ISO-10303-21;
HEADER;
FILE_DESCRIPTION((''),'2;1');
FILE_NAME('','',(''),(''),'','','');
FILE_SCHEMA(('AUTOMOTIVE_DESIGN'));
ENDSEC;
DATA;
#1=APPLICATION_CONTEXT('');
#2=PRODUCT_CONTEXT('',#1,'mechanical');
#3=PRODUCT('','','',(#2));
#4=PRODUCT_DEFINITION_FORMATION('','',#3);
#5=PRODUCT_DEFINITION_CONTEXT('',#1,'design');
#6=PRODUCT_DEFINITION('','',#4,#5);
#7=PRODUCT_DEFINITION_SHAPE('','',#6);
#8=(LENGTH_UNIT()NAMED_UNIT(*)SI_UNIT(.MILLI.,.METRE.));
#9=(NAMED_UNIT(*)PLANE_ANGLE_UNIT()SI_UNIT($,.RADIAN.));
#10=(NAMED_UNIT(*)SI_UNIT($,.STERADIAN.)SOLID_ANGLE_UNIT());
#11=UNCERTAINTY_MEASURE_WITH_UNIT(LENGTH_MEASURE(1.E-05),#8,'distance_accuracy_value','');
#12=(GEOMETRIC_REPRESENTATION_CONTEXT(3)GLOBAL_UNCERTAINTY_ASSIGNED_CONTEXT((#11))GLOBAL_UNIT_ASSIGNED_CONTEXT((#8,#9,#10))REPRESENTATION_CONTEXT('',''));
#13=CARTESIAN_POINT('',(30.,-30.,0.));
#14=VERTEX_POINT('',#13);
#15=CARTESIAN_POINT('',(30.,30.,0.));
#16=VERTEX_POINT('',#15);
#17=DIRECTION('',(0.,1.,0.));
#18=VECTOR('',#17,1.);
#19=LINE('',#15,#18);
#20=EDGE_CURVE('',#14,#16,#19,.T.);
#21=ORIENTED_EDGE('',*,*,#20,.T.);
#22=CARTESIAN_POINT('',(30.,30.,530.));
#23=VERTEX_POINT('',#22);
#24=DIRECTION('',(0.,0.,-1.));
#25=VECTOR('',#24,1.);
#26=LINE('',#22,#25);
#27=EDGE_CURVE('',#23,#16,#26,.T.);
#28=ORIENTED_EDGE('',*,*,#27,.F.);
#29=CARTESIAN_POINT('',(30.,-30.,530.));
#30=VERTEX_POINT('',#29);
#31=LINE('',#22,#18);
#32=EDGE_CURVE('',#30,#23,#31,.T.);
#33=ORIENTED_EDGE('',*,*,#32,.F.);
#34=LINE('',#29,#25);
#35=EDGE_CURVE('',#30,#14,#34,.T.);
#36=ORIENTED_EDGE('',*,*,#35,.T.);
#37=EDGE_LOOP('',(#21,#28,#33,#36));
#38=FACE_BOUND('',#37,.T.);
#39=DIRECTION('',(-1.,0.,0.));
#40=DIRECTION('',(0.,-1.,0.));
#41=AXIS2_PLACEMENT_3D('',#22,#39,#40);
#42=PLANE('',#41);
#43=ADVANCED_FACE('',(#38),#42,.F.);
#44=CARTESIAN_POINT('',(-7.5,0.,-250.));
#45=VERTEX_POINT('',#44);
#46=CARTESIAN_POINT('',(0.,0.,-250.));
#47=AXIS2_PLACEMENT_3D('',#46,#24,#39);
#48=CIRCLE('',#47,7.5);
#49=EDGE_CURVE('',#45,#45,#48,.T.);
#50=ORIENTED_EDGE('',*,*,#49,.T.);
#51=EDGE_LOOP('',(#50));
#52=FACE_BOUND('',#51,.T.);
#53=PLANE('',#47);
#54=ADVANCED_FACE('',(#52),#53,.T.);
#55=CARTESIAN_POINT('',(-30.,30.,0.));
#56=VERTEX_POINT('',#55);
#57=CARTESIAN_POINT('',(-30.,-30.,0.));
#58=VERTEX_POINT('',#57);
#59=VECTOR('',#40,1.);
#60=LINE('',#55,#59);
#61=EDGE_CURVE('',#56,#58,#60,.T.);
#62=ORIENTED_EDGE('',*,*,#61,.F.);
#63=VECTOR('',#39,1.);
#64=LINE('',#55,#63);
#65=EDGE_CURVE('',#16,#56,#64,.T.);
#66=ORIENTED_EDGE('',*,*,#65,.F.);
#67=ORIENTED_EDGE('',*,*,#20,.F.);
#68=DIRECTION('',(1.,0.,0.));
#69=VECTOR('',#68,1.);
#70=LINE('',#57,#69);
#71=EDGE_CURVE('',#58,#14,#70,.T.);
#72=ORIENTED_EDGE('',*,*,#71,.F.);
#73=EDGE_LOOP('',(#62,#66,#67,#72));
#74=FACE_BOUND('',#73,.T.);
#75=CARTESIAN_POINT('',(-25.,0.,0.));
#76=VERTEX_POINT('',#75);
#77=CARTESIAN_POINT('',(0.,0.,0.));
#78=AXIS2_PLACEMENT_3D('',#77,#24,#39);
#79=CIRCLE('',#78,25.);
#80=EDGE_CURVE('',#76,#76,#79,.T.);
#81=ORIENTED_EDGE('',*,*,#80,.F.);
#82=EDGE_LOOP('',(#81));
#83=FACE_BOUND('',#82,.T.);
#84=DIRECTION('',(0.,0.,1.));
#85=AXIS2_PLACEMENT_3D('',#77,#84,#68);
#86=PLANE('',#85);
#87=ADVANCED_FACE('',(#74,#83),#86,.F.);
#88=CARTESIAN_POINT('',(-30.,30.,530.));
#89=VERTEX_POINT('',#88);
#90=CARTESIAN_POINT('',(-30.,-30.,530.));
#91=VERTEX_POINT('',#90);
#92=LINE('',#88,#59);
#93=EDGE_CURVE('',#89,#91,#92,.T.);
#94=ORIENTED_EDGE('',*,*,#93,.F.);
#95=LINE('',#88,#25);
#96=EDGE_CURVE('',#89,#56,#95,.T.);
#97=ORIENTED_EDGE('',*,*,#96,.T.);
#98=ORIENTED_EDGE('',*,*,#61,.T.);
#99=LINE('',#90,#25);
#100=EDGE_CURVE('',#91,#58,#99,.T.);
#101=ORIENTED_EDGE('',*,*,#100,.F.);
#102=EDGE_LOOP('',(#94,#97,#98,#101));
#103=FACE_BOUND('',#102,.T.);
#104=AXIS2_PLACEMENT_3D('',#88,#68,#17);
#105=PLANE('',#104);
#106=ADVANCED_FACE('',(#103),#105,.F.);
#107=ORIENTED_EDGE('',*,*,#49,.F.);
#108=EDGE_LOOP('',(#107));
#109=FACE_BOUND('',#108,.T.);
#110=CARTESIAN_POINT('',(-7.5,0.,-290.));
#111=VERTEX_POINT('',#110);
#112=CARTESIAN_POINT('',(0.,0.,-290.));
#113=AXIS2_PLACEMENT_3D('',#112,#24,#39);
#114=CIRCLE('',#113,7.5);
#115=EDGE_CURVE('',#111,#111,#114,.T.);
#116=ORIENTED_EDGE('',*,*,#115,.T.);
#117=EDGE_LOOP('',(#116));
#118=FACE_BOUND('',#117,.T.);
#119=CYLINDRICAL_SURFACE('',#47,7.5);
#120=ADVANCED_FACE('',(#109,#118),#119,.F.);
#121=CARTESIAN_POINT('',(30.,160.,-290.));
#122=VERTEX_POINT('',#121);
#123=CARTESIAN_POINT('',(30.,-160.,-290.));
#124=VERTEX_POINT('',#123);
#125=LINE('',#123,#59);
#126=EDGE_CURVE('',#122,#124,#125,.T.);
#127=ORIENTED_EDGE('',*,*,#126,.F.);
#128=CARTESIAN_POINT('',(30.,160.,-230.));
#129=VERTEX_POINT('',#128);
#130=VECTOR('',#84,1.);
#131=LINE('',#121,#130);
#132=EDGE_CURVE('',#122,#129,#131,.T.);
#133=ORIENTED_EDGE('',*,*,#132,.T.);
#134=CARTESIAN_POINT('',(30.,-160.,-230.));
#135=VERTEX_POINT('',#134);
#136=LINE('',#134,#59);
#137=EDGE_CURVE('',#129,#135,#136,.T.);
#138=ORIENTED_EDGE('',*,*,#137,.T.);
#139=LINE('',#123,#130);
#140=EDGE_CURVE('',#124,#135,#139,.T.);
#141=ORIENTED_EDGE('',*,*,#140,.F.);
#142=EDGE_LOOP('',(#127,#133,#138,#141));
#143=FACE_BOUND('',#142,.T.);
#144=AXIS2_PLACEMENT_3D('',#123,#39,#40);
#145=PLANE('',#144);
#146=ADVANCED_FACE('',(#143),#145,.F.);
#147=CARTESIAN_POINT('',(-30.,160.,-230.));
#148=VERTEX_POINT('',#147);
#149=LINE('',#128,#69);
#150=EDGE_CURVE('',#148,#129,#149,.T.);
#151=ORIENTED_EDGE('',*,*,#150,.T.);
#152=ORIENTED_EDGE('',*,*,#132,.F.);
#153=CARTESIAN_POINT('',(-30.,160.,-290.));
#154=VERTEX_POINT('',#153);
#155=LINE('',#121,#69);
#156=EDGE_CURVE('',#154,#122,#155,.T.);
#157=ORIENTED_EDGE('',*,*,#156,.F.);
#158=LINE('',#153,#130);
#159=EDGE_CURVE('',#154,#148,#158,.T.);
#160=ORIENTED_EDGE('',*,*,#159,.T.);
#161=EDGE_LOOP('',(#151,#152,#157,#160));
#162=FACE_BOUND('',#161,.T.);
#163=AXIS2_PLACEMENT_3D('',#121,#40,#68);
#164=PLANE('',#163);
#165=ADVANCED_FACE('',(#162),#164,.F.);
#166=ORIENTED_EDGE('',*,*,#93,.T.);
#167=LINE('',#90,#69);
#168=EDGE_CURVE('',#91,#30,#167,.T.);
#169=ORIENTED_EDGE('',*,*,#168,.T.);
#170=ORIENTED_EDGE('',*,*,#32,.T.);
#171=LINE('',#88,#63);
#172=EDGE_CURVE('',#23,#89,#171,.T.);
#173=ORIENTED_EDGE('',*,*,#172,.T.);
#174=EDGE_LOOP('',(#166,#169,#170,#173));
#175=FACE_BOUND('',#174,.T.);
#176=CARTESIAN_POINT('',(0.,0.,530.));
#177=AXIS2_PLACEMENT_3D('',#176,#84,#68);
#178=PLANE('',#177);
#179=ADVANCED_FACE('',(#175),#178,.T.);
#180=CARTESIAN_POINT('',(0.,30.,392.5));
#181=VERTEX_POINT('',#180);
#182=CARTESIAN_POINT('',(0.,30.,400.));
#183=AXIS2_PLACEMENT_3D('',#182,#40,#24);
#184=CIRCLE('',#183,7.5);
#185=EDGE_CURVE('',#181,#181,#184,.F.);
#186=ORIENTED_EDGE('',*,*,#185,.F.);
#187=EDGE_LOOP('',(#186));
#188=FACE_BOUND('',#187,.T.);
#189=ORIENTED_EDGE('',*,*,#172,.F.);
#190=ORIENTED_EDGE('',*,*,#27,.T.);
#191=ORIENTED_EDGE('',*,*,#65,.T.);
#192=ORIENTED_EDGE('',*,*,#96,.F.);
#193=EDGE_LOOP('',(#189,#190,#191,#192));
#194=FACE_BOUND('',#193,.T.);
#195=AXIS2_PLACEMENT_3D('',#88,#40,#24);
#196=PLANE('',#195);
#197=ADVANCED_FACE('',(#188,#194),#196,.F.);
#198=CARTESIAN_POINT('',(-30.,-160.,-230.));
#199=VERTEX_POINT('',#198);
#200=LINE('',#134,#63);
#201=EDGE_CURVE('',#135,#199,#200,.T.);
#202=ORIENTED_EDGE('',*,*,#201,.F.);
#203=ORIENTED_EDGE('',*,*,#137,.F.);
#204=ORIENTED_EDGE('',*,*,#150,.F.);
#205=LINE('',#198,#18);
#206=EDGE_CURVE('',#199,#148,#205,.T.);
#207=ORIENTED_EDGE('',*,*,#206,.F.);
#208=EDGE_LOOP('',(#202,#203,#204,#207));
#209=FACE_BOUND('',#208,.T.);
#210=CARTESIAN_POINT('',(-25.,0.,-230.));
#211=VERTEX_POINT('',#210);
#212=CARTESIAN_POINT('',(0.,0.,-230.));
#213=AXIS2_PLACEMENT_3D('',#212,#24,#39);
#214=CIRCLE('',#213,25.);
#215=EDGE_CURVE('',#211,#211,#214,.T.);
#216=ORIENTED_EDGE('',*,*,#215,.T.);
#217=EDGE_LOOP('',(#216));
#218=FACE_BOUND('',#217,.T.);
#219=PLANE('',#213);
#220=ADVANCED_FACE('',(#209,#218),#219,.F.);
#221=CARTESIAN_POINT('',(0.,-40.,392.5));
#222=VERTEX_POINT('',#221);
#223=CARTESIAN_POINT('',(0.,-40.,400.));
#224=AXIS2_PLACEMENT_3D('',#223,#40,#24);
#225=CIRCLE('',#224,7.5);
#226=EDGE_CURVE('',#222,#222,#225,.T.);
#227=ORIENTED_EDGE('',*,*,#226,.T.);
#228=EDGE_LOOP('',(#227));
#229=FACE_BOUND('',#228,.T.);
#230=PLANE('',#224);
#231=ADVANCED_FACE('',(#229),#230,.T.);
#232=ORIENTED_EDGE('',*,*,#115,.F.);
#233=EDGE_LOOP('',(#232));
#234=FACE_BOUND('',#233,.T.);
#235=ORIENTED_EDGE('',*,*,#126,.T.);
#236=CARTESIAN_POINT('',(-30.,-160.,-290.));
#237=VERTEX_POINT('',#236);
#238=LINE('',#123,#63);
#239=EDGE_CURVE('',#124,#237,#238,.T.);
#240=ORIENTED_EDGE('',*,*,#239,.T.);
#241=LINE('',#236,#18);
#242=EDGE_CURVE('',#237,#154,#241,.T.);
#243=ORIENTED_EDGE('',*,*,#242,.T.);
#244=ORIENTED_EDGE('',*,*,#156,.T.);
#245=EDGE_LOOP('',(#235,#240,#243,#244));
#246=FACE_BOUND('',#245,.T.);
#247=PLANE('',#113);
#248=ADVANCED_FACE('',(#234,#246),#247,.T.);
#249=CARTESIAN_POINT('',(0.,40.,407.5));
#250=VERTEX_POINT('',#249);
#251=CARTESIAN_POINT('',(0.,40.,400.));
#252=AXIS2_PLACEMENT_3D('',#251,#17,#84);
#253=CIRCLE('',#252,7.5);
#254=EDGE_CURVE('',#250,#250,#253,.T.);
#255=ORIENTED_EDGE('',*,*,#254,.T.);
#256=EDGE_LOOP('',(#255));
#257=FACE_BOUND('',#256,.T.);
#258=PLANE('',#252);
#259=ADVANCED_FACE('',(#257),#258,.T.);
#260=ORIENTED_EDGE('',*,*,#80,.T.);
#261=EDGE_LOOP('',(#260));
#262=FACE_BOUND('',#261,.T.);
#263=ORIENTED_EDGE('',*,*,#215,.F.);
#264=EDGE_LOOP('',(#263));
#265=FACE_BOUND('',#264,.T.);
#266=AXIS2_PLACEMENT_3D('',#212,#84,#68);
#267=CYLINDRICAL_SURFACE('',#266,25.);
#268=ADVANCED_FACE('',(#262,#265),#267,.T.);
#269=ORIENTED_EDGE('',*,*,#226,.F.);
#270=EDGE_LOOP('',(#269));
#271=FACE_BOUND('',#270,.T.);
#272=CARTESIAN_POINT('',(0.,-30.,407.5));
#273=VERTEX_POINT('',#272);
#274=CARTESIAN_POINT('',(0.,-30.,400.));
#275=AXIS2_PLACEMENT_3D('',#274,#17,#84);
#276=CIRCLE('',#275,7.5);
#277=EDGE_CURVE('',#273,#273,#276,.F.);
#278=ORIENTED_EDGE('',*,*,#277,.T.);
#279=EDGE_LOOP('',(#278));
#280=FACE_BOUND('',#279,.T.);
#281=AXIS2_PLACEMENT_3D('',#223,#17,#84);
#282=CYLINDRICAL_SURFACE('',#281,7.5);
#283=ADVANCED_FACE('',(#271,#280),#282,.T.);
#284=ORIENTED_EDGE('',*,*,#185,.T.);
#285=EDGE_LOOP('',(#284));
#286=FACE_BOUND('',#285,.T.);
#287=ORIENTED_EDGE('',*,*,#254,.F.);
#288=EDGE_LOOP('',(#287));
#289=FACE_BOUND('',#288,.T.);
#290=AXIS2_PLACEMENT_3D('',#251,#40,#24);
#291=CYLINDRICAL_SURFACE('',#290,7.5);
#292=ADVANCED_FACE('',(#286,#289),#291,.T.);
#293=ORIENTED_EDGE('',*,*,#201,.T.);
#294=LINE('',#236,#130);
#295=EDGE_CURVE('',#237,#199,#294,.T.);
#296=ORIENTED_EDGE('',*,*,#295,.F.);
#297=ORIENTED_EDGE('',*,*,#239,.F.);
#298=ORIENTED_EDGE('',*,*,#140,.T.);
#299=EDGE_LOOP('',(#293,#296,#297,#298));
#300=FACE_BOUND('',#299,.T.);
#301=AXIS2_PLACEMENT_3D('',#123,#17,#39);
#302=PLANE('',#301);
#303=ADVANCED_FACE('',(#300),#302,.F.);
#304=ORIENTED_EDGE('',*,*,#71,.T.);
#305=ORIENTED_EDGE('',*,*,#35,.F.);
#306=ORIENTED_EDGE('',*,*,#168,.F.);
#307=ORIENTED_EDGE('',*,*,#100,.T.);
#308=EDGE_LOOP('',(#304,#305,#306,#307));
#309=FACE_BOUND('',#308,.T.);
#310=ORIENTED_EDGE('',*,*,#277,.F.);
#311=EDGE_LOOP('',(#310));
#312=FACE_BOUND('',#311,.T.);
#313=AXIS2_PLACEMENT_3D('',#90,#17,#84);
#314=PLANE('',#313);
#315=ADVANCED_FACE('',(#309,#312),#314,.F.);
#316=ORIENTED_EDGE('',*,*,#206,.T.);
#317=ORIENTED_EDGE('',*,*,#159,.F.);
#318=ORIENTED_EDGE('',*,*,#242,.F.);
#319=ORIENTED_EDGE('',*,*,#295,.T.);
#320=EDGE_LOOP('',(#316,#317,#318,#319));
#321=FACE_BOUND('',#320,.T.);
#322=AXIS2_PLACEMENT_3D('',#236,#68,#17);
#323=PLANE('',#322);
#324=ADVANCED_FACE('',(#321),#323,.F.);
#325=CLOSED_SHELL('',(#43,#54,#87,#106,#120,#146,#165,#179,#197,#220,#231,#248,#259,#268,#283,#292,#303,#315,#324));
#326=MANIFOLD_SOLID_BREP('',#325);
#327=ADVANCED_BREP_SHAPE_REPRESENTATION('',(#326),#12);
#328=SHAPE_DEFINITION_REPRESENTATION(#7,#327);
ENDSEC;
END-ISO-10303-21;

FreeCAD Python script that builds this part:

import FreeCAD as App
import Part
import Sketcher


def add_polygon(sketch, points):
    """Adds a closed chain of lines whose ends are joined by coincident constraints."""
    first, n = sketch.GeometryCount, len(points)
    for a, b in zip(points, points[1:] + points[:1]):
        sketch.addGeometry(Part.LineSegment(App.Vector(*a, 0), App.Vector(*b, 0)), False)
    for i in range(n):
        sketch.addConstraint(Sketcher.Constraint("Coincident", first + i, 2, first + (i + 1) % n, 1))

doc = App.newDocument("Part")
body = doc.addObject("PartDesign::Body", "Body")

# Sketch on XY plane
sketch1 = body.newObject("Sketcher::SketchObject", "Sketch")
sketch1.AttachmentSupport = (doc.getObject("XY_Plane"), [""])
sketch1.MapMode = "FlatFace"
add_polygon(sketch1, [(-30, 30), (-30, -30), (30, -30), (30, 30)])  # lines 0-3
sketch1.addConstraint([
    Sketcher.Constraint("Vertical", 0),
    Sketcher.Constraint("Horizontal", 1),
    Sketcher.Constraint("Vertical", 2),
    Sketcher.Constraint("Horizontal", 3),
    Sketcher.Constraint("Symmetric", 0, 2, 2, 2, -1, 1),
    Sketcher.Constraint("Equal", 3, 0),
    Sketcher.Constraint("DistanceX", 1, 1, 1, 2, 60.0),
])
pad1 = body.newObject("PartDesign::Pad", "Pad")
pad1.Profile = sketch1
pad1.Length = 530

# Sketch on XY plane
sketch2 = body.newObject("Sketcher::SketchObject", "Sketch001")
sketch2.AttachmentSupport = (doc.getObject("XY_Plane"), [""])
sketch2.MapMode = "FlatFace"
sketch2.addGeometry(Part.Circle(App.Vector(0, 0, 0), App.Vector(0, 0, 1), 25), False)
sketch2.addConstraint([
    Sketcher.Constraint("Coincident", 0, 3, -1, 1),
    Sketcher.Constraint("Diameter", 0, 50.0),
])
pad2 = body.newObject("PartDesign::Pad", "Pad001")
pad2.Profile = sketch2
pad2.Length = 230
pad2.Reversed = True

# Sketch on XZ plane
sketch3 = body.newObject("Sketcher::SketchObject", "Sketch002")
sketch3.AttachmentSupport = (doc.getObject("XZ_Plane"), [""])
sketch3.MapMode = "FlatFace"
sketch3.AttachmentOffset = App.Placement(App.Vector(0, 0, -30), App.Rotation())
sketch3.addGeometry(Part.Circle(App.Vector(0, 400, 0), App.Vector(0, 0, 1), 8), False)
sketch3.addConstraint([
    Sketcher.Constraint("PointOnObject", 0, 3, -2),
    Sketcher.Constraint("Diameter", 0, 15.0),
    Sketcher.Constraint("DistanceY", -1, 1, 0, 3, 400.0),
])
pad3 = body.newObject("PartDesign::Pad", "Pad002")
pad3.Profile = sketch3
pad3.Length = 10
pad3.Reversed = True

# Sketch on XZ plane
sketch4 = body.newObject("Sketcher::SketchObject", "Sketch003")
sketch4.AttachmentSupport = (doc.getObject("XZ_Plane"), [""])
sketch4.MapMode = "FlatFace"
sketch4.AttachmentOffset = App.Placement(App.Vector(0, 0, 40), App.Rotation())
sketch4.addGeometry(Part.Circle(App.Vector(0, 400, 0), App.Vector(0, 0, 1), 8), False)
sketch4.addConstraint([
    Sketcher.Constraint("PointOnObject", 0, 3, -2),
    Sketcher.Constraint("Diameter", 0, 15.0),
    Sketcher.Constraint("DistanceY", -1, 1, 0, 3, 400.0),
])
pad4 = body.newObject("PartDesign::Pad", "Pad003")
pad4.Profile = sketch4
pad4.Length = 10
pad4.Reversed = True

# Sketch on XY plane
sketch5 = body.newObject("Sketcher::SketchObject", "Sketch004")
sketch5.AttachmentSupport = (doc.getObject("XY_Plane"), [""])
sketch5.MapMode = "FlatFace"
sketch5.AttachmentOffset = App.Placement(App.Vector(0, 0, -230), App.Rotation())
add_polygon(sketch5, [(30, 160), (30, -160), (-30, -160), (-30, 160)])  # lines 0-3
sketch5.addConstraint([
    Sketcher.Constraint("Vertical", 0),
    Sketcher.Constraint("Horizontal", 1),
    Sketcher.Constraint("Vertical", 2),
    Sketcher.Constraint("Horizontal", 3),
    Sketcher.Constraint("Symmetric", 0, 2, 2, 2, -1, 1),
    Sketcher.Constraint("DistanceX", 1, 2, 1, 1, 60.0),
    Sketcher.Constraint("DistanceY", 0, 2, 0, 1, 320.0),
])
pad5 = body.newObject("PartDesign::Pad", "Pad004")
pad5.Profile = sketch5
pad5.Length = 60
pad5.Reversed = True

# Sketch on XY plane
sketch6 = body.newObject("Sketcher::SketchObject", "Sketch005")
sketch6.AttachmentSupport = (doc.getObject("XY_Plane"), [""])
sketch6.MapMode = "FlatFace"
sketch6.AttachmentOffset = App.Placement(App.Vector(0, 0, -290), App.Rotation())
sketch6.addGeometry(Part.Circle(App.Vector(0, 0, 0), App.Vector(0, 0, 1), 8), False)
sketch6.addConstraint([
    Sketcher.Constraint("Coincident", 0, 3, -1, 1),
    Sketcher.Constraint("Diameter", 0, 15.0),
])
pocket1 = body.newObject("PartDesign::Pocket", "Pocket")
pocket1.Profile = sketch6
pocket1.Length = 40
pocket1.Reversed = True

doc.recompute()
